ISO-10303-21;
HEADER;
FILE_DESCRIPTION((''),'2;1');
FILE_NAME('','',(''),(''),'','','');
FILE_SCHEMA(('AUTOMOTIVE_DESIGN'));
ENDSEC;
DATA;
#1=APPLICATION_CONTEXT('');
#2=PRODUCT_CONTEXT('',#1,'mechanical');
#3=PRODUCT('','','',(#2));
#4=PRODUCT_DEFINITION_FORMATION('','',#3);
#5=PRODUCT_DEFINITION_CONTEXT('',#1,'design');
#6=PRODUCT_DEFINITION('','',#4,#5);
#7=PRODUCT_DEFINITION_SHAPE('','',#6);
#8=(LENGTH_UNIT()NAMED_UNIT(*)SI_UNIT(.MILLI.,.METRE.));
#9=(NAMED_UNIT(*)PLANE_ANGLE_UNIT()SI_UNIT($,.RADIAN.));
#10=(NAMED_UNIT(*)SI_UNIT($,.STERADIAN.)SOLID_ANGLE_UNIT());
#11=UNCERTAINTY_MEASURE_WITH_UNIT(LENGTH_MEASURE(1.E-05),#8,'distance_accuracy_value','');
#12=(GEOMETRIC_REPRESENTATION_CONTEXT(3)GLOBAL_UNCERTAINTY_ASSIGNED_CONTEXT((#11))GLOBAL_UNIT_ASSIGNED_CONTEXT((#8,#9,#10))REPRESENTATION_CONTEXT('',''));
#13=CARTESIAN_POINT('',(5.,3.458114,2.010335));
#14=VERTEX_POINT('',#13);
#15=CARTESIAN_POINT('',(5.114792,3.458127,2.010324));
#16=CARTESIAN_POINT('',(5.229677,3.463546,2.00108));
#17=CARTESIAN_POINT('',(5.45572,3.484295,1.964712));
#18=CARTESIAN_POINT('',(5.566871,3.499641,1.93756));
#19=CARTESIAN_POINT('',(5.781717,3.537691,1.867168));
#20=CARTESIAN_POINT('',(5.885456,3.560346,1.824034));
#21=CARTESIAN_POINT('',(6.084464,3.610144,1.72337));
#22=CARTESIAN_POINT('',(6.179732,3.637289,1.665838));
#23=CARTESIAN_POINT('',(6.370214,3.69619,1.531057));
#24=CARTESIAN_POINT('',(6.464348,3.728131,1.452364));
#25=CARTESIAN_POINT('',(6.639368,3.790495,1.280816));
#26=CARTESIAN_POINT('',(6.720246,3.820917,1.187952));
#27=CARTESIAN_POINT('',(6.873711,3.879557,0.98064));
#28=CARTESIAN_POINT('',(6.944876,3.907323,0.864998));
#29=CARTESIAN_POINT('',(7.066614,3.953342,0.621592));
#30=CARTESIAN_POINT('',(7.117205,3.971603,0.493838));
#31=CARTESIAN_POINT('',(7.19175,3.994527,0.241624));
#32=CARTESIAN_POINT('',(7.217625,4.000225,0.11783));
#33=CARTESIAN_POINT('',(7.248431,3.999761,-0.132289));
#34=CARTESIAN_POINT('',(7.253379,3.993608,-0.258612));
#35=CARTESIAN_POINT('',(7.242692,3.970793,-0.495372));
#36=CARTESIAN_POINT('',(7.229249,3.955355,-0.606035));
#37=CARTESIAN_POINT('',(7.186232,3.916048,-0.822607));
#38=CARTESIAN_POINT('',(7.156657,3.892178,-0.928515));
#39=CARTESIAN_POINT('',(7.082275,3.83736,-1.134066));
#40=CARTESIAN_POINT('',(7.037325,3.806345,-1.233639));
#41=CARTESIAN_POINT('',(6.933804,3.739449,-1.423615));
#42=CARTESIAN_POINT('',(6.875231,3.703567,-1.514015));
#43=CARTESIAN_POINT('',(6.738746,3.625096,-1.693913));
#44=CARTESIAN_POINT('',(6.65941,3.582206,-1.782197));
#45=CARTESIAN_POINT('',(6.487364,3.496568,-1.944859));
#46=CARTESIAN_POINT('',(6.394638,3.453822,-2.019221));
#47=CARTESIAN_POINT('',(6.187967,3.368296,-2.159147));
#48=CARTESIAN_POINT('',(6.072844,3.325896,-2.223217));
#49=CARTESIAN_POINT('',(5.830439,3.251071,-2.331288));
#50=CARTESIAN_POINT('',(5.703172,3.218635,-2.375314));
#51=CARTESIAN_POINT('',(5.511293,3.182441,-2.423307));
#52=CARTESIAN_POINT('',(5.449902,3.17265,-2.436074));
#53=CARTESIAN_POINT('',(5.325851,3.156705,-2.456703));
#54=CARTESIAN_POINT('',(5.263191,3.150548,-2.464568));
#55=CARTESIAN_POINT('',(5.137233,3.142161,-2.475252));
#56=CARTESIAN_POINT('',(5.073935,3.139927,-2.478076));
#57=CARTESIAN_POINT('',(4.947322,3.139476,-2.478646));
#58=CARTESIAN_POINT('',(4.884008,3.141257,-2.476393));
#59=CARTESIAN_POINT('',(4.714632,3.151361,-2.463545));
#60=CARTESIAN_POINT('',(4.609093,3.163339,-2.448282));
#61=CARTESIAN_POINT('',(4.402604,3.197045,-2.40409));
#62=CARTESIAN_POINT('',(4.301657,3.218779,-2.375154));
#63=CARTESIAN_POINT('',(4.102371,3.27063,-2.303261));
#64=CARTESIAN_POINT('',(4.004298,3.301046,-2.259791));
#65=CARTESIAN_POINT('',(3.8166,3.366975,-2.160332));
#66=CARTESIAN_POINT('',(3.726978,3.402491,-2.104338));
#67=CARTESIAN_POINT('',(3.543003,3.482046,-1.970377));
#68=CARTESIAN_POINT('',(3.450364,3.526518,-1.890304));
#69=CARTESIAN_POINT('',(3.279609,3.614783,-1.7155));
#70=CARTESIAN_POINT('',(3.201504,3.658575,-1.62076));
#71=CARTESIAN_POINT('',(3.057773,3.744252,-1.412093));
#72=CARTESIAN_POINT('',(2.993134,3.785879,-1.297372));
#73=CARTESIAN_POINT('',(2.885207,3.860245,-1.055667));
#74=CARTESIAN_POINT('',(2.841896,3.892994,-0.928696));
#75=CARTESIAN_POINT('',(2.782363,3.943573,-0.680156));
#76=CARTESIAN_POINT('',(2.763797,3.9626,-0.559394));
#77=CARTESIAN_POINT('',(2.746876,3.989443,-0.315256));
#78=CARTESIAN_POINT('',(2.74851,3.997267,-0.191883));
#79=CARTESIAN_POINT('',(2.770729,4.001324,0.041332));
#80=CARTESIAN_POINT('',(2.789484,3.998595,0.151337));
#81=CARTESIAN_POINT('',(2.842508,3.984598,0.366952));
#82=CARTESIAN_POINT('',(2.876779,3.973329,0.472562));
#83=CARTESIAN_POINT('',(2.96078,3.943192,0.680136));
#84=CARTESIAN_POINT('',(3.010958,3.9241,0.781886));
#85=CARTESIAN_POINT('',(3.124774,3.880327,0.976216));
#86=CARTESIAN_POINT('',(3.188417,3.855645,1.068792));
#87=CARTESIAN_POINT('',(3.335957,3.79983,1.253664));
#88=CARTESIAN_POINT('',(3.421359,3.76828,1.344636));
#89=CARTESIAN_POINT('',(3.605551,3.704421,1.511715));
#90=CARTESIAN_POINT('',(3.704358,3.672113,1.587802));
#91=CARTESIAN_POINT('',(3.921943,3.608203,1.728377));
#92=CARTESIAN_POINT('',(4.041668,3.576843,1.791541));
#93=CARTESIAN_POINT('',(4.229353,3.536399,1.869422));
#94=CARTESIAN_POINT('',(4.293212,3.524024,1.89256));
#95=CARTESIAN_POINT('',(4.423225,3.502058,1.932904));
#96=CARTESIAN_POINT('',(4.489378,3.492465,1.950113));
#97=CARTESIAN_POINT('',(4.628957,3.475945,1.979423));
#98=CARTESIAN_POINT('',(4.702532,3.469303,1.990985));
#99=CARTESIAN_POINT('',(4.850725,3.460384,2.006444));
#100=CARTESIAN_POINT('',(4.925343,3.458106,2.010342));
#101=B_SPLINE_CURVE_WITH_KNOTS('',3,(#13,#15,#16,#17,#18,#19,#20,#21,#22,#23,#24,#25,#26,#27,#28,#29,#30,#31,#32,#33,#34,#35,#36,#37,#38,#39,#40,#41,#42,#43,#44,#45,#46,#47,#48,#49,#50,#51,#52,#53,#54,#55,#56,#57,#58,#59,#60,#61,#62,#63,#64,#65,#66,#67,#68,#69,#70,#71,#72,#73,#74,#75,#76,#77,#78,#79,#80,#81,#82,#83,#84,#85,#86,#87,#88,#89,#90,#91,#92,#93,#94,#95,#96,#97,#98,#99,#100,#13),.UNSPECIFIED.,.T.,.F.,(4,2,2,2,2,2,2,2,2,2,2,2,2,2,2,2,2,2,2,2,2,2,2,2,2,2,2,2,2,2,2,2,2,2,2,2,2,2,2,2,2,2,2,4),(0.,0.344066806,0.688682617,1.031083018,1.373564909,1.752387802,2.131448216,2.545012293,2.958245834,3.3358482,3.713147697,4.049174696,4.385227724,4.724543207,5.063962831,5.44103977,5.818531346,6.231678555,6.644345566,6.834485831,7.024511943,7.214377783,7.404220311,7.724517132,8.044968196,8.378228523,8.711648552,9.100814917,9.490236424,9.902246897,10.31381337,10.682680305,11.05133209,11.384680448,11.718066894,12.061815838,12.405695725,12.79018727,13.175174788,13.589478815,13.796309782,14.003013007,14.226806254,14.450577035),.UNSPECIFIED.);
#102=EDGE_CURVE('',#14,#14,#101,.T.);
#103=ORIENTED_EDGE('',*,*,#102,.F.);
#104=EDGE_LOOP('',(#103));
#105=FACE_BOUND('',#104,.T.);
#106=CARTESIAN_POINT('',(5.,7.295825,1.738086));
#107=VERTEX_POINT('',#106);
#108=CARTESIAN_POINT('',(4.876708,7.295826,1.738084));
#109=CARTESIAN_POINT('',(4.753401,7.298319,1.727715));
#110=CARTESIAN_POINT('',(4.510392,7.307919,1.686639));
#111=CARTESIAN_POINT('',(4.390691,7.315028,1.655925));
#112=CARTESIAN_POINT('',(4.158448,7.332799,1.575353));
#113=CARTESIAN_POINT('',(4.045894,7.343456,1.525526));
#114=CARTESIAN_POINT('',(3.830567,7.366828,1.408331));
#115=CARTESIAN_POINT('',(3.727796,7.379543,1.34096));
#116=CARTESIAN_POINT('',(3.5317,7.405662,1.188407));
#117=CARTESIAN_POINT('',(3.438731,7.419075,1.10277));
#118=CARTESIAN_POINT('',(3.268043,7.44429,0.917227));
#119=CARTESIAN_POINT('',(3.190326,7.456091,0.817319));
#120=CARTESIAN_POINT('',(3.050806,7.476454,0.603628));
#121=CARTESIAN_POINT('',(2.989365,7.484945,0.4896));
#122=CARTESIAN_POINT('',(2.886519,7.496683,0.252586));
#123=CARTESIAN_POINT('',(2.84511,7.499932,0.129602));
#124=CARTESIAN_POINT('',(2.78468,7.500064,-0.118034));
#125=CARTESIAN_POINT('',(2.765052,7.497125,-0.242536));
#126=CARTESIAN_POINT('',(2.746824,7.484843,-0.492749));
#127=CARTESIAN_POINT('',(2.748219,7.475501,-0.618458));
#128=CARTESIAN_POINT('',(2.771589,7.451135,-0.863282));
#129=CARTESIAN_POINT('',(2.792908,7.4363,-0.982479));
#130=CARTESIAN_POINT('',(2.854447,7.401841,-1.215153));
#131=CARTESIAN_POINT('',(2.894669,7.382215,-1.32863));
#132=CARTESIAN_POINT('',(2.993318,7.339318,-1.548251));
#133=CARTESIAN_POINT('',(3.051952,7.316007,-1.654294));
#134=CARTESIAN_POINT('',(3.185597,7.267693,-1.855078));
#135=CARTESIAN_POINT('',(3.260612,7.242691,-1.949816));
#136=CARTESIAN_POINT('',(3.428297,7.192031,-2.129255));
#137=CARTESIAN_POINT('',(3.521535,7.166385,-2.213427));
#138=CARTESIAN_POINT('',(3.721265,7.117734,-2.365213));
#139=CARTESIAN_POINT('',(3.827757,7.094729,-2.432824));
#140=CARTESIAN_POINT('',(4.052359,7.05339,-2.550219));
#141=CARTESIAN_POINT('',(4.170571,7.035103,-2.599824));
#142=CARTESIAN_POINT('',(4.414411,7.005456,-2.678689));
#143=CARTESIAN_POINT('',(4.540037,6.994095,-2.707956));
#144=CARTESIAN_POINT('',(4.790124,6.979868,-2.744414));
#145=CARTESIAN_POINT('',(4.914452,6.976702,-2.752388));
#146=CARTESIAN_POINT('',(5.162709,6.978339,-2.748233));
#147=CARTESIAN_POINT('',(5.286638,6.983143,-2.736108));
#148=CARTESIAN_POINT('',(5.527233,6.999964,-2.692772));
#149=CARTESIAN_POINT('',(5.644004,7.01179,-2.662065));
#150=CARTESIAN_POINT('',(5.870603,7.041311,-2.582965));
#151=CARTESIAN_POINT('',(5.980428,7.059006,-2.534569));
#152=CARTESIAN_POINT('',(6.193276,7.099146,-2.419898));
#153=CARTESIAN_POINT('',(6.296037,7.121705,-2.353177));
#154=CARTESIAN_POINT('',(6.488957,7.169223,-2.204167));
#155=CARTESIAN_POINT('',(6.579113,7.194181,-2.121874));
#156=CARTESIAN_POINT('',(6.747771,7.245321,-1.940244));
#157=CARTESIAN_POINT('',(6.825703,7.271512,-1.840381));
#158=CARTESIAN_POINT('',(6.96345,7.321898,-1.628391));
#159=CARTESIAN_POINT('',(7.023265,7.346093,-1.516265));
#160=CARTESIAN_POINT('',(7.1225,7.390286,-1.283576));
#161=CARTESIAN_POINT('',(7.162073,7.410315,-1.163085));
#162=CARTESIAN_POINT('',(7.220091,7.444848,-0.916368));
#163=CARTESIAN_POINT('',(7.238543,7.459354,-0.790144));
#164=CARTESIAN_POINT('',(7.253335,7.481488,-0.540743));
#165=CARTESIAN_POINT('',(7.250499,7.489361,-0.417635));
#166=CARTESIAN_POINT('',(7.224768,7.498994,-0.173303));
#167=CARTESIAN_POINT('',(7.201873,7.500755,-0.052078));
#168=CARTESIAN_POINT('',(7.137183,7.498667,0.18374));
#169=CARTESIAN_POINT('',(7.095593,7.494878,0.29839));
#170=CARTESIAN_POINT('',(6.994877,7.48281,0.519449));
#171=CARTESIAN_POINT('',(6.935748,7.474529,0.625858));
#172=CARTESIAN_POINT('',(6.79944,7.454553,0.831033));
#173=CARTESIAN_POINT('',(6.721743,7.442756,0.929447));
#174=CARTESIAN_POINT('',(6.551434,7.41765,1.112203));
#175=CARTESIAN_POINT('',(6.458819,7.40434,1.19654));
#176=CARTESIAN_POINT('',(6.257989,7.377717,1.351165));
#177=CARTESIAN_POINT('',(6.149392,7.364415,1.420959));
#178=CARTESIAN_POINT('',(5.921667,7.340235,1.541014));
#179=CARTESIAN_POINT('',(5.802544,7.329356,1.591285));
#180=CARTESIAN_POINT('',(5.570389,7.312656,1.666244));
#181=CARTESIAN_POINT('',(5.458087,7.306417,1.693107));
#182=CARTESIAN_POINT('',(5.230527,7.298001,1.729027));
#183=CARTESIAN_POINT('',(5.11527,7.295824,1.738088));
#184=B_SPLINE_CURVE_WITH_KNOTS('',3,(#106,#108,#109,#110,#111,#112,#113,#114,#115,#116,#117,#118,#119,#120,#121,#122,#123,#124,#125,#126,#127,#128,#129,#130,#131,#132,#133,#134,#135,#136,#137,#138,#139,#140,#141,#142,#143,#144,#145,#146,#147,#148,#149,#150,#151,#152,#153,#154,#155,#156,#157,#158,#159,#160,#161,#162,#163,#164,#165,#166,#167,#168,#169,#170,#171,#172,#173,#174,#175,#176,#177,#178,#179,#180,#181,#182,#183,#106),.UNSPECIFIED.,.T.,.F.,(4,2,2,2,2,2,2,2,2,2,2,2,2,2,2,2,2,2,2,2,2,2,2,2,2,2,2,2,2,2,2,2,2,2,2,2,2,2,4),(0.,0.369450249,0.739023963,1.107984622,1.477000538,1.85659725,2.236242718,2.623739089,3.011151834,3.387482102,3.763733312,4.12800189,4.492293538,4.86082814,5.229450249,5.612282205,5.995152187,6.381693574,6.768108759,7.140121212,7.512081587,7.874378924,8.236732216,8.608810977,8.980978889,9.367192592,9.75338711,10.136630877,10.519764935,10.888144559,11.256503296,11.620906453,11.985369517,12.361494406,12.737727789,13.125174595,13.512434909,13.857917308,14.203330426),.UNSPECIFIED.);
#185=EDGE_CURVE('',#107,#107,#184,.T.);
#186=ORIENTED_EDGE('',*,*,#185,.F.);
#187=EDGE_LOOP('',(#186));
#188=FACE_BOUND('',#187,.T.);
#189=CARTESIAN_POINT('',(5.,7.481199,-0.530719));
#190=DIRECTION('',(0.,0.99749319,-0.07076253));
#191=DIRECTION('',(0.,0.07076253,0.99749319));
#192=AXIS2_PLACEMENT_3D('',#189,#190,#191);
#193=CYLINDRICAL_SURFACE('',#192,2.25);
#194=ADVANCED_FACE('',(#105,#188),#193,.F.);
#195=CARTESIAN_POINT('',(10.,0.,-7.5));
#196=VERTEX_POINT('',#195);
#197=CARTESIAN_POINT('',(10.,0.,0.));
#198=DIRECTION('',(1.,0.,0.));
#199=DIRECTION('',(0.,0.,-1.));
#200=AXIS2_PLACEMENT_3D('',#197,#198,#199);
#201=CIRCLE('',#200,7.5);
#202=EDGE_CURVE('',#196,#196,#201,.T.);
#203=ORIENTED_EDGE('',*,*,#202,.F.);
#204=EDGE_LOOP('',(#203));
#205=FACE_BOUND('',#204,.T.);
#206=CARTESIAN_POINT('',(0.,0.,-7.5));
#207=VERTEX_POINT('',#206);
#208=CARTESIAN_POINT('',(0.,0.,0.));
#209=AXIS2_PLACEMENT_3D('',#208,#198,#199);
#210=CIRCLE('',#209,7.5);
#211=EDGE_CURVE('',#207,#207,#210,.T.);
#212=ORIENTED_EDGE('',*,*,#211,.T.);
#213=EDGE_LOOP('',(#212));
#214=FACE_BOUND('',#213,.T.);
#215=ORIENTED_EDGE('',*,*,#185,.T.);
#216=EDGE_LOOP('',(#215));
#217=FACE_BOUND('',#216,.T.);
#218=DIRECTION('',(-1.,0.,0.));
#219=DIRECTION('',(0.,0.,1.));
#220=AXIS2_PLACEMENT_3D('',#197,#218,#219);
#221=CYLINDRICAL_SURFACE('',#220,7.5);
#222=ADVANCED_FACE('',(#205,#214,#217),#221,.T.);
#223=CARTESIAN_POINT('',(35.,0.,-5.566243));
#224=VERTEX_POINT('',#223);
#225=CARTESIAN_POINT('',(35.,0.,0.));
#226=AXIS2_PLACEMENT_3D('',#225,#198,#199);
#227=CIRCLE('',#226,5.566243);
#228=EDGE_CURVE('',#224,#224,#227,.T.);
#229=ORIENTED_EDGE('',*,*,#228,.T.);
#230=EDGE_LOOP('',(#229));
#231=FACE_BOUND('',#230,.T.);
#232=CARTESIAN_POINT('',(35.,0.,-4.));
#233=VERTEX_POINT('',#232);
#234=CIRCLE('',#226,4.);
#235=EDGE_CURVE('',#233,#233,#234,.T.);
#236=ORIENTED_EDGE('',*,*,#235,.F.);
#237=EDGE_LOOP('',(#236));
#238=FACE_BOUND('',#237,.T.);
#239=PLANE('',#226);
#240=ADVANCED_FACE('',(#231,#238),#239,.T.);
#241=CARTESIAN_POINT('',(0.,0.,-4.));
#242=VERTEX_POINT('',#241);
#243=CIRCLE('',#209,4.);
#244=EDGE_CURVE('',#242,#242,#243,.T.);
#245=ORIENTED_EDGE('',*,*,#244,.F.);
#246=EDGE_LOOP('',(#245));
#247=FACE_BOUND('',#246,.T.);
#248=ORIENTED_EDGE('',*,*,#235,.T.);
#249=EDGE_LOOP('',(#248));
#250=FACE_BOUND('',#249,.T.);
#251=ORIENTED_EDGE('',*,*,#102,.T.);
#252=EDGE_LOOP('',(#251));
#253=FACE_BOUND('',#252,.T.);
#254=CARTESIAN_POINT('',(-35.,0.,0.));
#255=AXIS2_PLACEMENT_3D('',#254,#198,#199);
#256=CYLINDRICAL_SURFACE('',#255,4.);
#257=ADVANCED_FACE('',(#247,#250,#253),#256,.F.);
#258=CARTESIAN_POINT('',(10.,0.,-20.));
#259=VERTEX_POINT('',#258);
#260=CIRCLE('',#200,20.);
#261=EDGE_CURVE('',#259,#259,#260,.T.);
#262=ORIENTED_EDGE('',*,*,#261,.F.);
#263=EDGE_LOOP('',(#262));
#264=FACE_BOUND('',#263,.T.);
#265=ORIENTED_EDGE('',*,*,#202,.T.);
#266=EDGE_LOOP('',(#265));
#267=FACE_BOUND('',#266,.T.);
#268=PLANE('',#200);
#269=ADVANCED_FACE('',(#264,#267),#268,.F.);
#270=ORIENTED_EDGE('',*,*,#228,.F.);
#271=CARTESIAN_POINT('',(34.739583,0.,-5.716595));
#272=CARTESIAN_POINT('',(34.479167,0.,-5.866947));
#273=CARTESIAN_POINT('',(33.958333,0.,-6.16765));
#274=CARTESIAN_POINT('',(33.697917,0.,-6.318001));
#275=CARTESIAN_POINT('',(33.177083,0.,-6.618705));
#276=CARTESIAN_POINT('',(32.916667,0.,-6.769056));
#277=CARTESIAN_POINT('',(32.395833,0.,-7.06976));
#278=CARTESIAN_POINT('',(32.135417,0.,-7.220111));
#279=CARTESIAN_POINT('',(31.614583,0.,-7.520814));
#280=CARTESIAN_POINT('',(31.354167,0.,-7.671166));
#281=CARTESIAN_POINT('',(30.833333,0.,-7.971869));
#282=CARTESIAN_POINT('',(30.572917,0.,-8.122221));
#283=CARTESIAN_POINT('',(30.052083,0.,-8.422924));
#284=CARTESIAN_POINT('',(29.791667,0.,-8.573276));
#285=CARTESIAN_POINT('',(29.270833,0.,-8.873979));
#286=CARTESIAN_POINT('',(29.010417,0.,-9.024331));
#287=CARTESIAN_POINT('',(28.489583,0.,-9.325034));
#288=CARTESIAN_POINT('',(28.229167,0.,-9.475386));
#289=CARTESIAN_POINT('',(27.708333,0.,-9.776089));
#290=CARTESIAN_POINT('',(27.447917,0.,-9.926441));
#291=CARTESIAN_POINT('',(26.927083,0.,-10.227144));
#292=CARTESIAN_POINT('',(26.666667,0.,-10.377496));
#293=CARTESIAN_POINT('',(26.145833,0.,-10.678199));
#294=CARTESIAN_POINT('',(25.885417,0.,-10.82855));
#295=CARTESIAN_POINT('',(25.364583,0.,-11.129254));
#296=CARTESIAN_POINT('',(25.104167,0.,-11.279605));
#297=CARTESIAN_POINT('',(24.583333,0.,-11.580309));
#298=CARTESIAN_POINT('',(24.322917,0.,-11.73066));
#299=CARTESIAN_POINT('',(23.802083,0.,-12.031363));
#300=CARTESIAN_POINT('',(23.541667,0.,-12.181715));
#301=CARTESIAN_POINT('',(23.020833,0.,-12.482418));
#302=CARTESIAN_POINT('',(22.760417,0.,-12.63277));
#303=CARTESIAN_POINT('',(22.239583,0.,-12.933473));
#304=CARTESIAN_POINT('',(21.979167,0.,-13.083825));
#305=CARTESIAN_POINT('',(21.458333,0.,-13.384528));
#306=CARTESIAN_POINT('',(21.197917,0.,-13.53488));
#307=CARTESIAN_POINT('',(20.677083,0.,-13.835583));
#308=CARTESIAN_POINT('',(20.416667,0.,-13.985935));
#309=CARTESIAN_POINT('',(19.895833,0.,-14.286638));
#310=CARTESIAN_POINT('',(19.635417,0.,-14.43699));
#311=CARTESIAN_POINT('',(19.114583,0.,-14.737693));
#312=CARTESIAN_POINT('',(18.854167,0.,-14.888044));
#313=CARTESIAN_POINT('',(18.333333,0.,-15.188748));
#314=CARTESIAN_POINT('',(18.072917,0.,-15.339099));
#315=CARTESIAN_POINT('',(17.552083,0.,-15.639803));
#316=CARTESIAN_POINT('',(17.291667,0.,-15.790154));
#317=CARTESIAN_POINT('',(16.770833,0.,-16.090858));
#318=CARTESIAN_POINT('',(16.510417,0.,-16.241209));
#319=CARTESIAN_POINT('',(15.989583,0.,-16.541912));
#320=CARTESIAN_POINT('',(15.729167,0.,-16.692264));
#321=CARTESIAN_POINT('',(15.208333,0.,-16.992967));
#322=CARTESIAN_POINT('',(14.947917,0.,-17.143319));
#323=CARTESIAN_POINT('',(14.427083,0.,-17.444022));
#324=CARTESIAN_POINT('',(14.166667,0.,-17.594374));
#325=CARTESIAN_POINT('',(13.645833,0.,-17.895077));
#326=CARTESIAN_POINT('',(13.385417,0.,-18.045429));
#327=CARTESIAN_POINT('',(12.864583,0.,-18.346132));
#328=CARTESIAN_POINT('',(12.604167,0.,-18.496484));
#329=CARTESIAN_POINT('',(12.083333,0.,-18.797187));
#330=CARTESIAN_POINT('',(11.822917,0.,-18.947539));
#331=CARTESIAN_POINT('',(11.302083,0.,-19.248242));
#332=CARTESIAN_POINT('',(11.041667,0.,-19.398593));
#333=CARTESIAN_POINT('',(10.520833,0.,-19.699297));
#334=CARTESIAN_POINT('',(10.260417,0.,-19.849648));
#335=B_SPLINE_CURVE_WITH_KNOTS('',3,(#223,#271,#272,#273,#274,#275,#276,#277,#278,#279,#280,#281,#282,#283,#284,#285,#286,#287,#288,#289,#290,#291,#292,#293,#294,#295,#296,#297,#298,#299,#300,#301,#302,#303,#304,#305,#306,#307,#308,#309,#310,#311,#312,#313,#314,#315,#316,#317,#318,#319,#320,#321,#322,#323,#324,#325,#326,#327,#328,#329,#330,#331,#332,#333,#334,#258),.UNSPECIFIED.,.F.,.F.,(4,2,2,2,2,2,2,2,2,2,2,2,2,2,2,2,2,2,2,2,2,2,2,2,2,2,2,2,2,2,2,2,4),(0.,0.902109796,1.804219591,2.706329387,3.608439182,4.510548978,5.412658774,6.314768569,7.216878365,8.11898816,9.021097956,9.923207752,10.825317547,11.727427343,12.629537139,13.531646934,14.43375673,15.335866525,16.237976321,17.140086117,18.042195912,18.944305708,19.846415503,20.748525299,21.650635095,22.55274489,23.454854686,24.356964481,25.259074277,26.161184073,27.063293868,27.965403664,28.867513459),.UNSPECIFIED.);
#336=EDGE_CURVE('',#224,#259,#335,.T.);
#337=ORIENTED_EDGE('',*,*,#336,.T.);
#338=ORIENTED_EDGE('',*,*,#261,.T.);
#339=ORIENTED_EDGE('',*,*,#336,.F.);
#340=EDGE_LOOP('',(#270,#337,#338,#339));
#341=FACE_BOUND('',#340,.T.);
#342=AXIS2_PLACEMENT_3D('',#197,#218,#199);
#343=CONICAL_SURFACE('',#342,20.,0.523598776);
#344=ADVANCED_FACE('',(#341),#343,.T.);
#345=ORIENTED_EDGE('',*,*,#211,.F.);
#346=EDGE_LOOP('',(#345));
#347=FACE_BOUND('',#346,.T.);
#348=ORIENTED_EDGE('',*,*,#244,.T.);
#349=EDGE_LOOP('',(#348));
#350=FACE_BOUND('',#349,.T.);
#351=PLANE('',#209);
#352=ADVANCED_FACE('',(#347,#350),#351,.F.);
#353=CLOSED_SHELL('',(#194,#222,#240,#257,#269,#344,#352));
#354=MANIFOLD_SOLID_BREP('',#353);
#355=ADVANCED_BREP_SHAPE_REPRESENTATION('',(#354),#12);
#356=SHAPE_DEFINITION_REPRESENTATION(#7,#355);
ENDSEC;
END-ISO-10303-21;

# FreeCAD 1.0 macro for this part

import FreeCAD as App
import Part
import Sketcher
Q = App.Units.Quantity

doc = App.newDocument("Part")
body = doc.addObject("PartDesign::Body", "Body")

# Sketch on YZ plane
sketch1 = body.newObject("Sketcher::SketchObject", "Sketch")
sketch1.AttachmentSupport = (doc.getObject("YZ_Plane"), [""])
sketch1.MapMode = "FlatFace"
sketch1.addGeometry(Part.Circle(App.Vector(0, 0, 0), App.Vector(0, 0, 1), 8), False)
sketch1.addConstraint(Sketcher.Constraint("Coincident", 0, 3, -1, 1))
sketch1.addConstraint(Sketcher.Constraint("Diameter", 0, Q("15 mm")))
pad1 = body.newObject("PartDesign::Pad", "Pad")
pad1.Profile = sketch1
pad1.Length = 10

# Sketch on YZ plane
sketch2 = body.newObject("Sketcher::SketchObject", "Sketch001")
sketch2.AttachmentSupport = (doc.getObject("YZ_Plane"), [""])
sketch2.MapMode = "FlatFace"
sketch2.AttachmentOffset = App.Placement(App.Vector(0, 0, 10), App.Rotation())
sketch2.addGeometry(Part.Circle(App.Vector(0, 0, 0), App.Vector(0, 0, 1), 20), False)
sketch2.addConstraint(Sketcher.Constraint("Coincident", 0, 3, -1, 1))
sketch2.addConstraint(Sketcher.Constraint("Diameter", 0, Q("40 mm")))
pad2 = body.newObject("PartDesign::Pad", "Pad001")
pad2.Profile = sketch2
pad2.Length = 25
pad2.TaperAngle = -30

# Sketch on YZ plane
sketch3 = body.newObject("Sketcher::SketchObject", "Sketch002")
sketch3.AttachmentSupport = (doc.getObject("YZ_Plane"), [""])
sketch3.MapMode = "FlatFace"
sketch3.AttachmentOffset = App.Placement(App.Vector(0, 0, 35), App.Rotation())
sketch3.addGeometry(Part.Circle(App.Vector(0, 0, 0), App.Vector(0, 0, 1), 4), False)
sketch3.addConstraint(Sketcher.Constraint("Coincident", 0, 3, -1, 1))
sketch3.addConstraint(Sketcher.Constraint("Diameter", 0, Q("8 mm")))
pocket1 = body.newObject("PartDesign::Pocket", "Pocket")
pocket1.Profile = sketch3
pocket1.Length = 70

# Sketch on an angled plane
sketch4 = body.newObject("Sketcher::SketchObject", "Sketch003")
sketch4.Placement = App.Placement(App.Vector(5, 7.481199, -0.530719), App.Rotation(App.Vector(0, 0.07076253, 0.99749319), App.Vector(1, 0, 0), App.Vector(0, 0.99749319, -0.07076253), "ZXY"))
sketch4.addGeometry(Part.Circle(App.Vector(0, 0, 0), App.Vector(0, 0, 1), 2.2), False)
sketch4.addConstraint(Sketcher.Constraint("Coincident", 0, 3, -1, 1))
sketch4.addConstraint(Sketcher.Constraint("Diameter", 0, Q("4.5 mm")))
pocket2 = body.newObject("PartDesign::Pocket", "Pocket001")
pocket2.Profile = sketch4
pocket2.Length = 4.192811

doc.recompute()
